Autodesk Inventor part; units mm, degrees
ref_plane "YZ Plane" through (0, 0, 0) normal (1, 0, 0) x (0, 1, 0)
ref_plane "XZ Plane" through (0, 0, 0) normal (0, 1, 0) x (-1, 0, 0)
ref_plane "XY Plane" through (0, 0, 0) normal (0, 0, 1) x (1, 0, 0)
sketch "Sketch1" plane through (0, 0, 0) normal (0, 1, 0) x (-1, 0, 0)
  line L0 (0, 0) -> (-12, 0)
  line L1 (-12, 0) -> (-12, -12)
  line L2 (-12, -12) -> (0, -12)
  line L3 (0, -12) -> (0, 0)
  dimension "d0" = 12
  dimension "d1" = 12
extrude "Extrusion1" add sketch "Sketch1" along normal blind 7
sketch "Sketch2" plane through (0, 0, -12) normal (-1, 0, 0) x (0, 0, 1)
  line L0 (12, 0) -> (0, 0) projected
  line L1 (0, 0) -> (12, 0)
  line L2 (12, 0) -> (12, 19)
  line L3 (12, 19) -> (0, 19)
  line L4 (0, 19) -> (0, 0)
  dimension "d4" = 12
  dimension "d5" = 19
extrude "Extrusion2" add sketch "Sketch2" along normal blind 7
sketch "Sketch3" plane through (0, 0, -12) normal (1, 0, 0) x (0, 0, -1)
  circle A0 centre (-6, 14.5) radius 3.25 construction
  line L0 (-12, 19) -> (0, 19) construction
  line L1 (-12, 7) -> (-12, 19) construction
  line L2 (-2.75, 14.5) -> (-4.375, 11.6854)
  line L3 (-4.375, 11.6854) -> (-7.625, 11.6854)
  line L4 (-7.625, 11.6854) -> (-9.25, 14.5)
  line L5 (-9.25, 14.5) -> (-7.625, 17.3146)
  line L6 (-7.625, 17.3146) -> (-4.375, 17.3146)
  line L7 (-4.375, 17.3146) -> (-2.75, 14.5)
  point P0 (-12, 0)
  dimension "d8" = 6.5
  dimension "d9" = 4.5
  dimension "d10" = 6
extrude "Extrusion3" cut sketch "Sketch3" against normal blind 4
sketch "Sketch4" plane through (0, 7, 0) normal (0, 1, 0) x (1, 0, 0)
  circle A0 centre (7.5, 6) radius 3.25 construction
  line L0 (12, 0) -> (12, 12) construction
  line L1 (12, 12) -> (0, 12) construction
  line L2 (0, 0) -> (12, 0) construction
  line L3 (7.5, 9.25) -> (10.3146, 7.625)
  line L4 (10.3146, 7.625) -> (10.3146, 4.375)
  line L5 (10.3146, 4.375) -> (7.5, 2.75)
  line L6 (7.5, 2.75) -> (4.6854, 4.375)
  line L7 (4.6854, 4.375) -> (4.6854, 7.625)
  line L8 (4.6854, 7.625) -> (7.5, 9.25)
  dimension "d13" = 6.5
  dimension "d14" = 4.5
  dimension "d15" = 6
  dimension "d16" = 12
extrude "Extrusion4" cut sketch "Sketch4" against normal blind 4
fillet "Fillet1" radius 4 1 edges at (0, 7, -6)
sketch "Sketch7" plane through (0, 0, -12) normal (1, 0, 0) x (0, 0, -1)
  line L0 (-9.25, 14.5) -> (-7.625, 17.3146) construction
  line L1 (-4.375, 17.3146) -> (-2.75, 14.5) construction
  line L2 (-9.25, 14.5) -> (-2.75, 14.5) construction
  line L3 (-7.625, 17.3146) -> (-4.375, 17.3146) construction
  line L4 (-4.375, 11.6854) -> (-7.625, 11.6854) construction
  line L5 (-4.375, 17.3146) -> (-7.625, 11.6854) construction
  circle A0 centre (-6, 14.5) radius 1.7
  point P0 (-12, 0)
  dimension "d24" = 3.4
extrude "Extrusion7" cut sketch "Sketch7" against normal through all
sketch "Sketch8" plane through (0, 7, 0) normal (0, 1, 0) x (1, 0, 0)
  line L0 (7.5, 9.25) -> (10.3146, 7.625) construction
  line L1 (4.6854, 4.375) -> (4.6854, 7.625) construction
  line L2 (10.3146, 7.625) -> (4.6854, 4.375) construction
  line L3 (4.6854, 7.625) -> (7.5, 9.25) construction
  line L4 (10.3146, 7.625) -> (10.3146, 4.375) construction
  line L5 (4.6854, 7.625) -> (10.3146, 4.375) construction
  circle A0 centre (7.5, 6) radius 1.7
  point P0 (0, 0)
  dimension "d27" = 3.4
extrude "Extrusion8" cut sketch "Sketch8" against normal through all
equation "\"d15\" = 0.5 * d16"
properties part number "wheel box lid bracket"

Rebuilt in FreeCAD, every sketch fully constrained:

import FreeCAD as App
import Part
import Sketcher
Q = App.Units.Quantity


def edges_at(feature, points):
    """Names of the edges that pass closest to the given points."""
    edges = feature.Shape.Edges
    near = lambda p: min(range(len(edges)), key=lambda i: edges[i].distToShape(Part.Vertex(*p))[0])
    return sorted({f"Edge{near(p) + 1}" for p in points})


def add_polygon(sketch, points):
    """Adds a closed chain of lines whose ends are joined by coincident constraints."""
    first, n = sketch.GeometryCount, len(points)
    for a, b in zip(points, points[1:] + points[:1]):
        sketch.addGeometry(Part.LineSegment(App.Vector(*a, 0), App.Vector(*b, 0)), False)
    for i in range(n):
        sketch.addConstraint(Sketcher.Constraint("Coincident", first + i, 2, first + (i + 1) % n, 1))

doc = App.newDocument("Part")
body = doc.addObject("PartDesign::Body", "Body")

# Sketch on XZ plane
sketch1 = body.newObject("Sketcher::SketchObject", "Sketch")
sketch1.AttachmentSupport = (doc.getObject("XZ_Plane"), [""])
sketch1.MapMode = "FlatFace"
add_polygon(sketch1, [(0, -12), (0, 0), (12, 0), (12, -12)])  # lines 0-3
sketch1.addConstraint(Sketcher.Constraint("Vertical", 0))
sketch1.addConstraint(Sketcher.Constraint("Horizontal", 1))
sketch1.addConstraint(Sketcher.Constraint("Vertical", 2))
sketch1.addConstraint(Sketcher.Constraint("Horizontal", 3))
sketch1.addConstraint(Sketcher.Constraint("Coincident", 0, 2, -1, 1))
sketch1.addConstraint(Sketcher.Constraint("Equal", 3, 0))
sketch1.addConstraint(Sketcher.Constraint("DistanceX", 1, 1, 1, 2, 12.0))
pad1 = body.newObject("PartDesign::Pad", "Pad")
pad1.Profile = sketch1
pad1.Length = 7
pad1.Reversed = True

# Sketch on YZ plane
sketch2 = body.newObject("Sketcher::SketchObject", "Sketch001")
sketch2.AttachmentSupport = (doc.getObject("YZ_Plane"), [""])
sketch2.MapMode = "FlatFace"
add_polygon(sketch2, [(0, -12), (0, 0), (19, 0), (19, -12)])  # lines 0-3
sketch2.addConstraint(Sketcher.Constraint("Vertical", 0))
sketch2.addConstraint(Sketcher.Constraint("Horizontal", 1))
sketch2.addConstraint(Sketcher.Constraint("Vertical", 2))
sketch2.addConstraint(Sketcher.Constraint("Horizontal", 3))
sketch2.addConstraint(Sketcher.Constraint("Coincident", 0, 2, -1, 1))
sketch2.addConstraint(Sketcher.Constraint("DistanceX", 1, 1, 1, 2, 19.0))
sketch2.addConstraint(Sketcher.Constraint("DistanceY", 0, 1, 0, 2, 12.0))
pad2 = body.newObject("PartDesign::Pad", "Pad001")
pad2.Profile = sketch2
pad2.Length = 7
pad2.Reversed = True

# Sketch on YZ plane
sketch3 = body.newObject("Sketcher::SketchObject", "Sketch002")
sketch3.AttachmentSupport = (doc.getObject("YZ_Plane"), [""])
sketch3.MapMode = "FlatFace"
add_polygon(sketch3, [(11.6854, -7.625), (14.5, -9.25), (17.3146, -7.625), (17.3146, -4.375), (14.5, -2.75), (11.6854, -4.375)])  # lines 0-5
sketch3.addConstraint(Sketcher.Constraint("Vertical", 2))
sketch3.addConstraint(Sketcher.Constraint("Vertical", 5))
sketch3.addConstraint(Sketcher.Constraint("Parallel", 0, 3))
sketch3.addConstraint(Sketcher.Constraint("Parallel", 1, 4))
sketch3.addConstraint(Sketcher.Constraint("Horizontal", 2, 2, 4, 2))
sketch3.addConstraint(Sketcher.Constraint("Horizontal", 1, 2, 5, 2))
sketch3.addConstraint(Sketcher.Constraint("Vertical", 0, 2, 3, 2))
sketch3.addConstraint(Sketcher.Constraint("DistanceY", 0, 2, 3, 2, 6.5))
sketch3.addConstraint(Sketcher.Constraint("Angle", 0, Q("-29.9998 deg")))
sketch3.addConstraint(Sketcher.Constraint("DistanceY", 2, 1, 2, 2, 3.25))
sketch3.addConstraint(Sketcher.Constraint("DistanceX", -1, 1, 0, 2, 14.5))
sketch3.addConstraint(Sketcher.Constraint("DistanceY", 0, 2, -1, 1, 9.25))
pocket1 = body.newObject("PartDesign::Pocket", "Pocket")
pocket1.Profile = sketch3
pocket1.Length = 4

# Sketch on XZ plane
sketch4 = body.newObject("Sketcher::SketchObject", "Sketch003")
sketch4.AttachmentSupport = (doc.getObject("XZ_Plane"), [""])
sketch4.MapMode = "FlatFace"
sketch4.AttachmentOffset = App.Placement(App.Vector(0, 0, -7), App.Rotation())
add_polygon(sketch4, [(10.3146, -7.625), (7.5, -9.25), (4.6854, -7.625), (4.6854, -4.375), (7.5, -2.75), (10.3146, -4.375)])  # lines 0-5
sketch4.addConstraint(Sketcher.Constraint("Vertical", 2))
sketch4.addConstraint(Sketcher.Constraint("Vertical", 5))
sketch4.addConstraint(Sketcher.Constraint("Parallel", 0, 3))
sketch4.addConstraint(Sketcher.Constraint("Parallel", 1, 4))
sketch4.addConstraint(Sketcher.Constraint("Horizontal", 2, 2, 4, 2))
sketch4.addConstraint(Sketcher.Constraint("Horizontal", 1, 2, 5, 2))
sketch4.addConstraint(Sketcher.Constraint("Vertical", 0, 2, 3, 2))
sketch4.addConstraint(Sketcher.Constraint("DistanceY", 0, 2, 3, 2, 6.5))
sketch4.addConstraint(Sketcher.Constraint("Angle", 0, Q("-150.0002 deg")))
sketch4.addConstraint(Sketcher.Constraint("DistanceY", 2, 1, 2, 2, 3.25))
sketch4.addConstraint(Sketcher.Constraint("DistanceX", -1, 1, 0, 2, 7.5))
sketch4.addConstraint(Sketcher.Constraint("DistanceY", 0, 2, -1, 1, 9.25))
pocket2 = body.newObject("PartDesign::Pocket", "Pocket001")
pocket2.Profile = sketch4
pocket2.Length = 4
pocket2.Reversed = True
doc.recompute()

fillet = body.newObject("PartDesign::Fillet", "Fillet")
fillet.Base = (pocket2, edges_at(pocket2, [(0, 7, -6)]))
fillet.Radius = 4

# Sketch on YZ plane
sketch5 = body.newObject("Sketcher::SketchObject", "Sketch004")
sketch5.AttachmentSupport = (doc.getObject("YZ_Plane"), [""])
sketch5.MapMode = "FlatFace"
sketch5.addGeometry(Part.Circle(App.Vector(14.5, -6, 0), App.Vector(0, 0, 1), 1.7), False)
sketch5.addConstraint(Sketcher.Constraint("Diameter", 0, 3.4))
sketch5.addConstraint(Sketcher.Constraint("DistanceY", 0, 3, -1, 1, 6.0))
sketch5.addConstraint(Sketcher.Constraint("DistanceX", -1, 1, 0, 3, 14.5))
pocket3 = body.newObject("PartDesign::Pocket", "Pocket002")
pocket3.Profile = sketch5
pocket3.Type = "ThroughAll"

# Sketch on XZ plane
sketch6 = body.newObject("Sketcher::SketchObject", "Sketch005")
sketch6.AttachmentSupport = (doc.getObject("XZ_Plane"), [""])
sketch6.MapMode = "FlatFace"
sketch6.AttachmentOffset = App.Placement(App.Vector(0, 0, -7), App.Rotation())
sketch6.addGeometry(Part.Circle(App.Vector(7.5, -6, 0), App.Vector(0, 0, 1), 1.7), False)
sketch6.addConstraint(Sketcher.Constraint("Diameter", 0, 3.4))
sketch6.addConstraint(Sketcher.Constraint("DistanceY", 0, 3, -1, 1, 6.0))
sketch6.addConstraint(Sketcher.Constraint("DistanceX", -1, 1, 0, 3, 7.5))
pocket4 = body.newObject("PartDesign::Pocket", "Pocket003")
pocket4.Profile = sketch6
pocket4.Type = "ThroughAll"
pocket4.Reversed = True

doc.recompute()
